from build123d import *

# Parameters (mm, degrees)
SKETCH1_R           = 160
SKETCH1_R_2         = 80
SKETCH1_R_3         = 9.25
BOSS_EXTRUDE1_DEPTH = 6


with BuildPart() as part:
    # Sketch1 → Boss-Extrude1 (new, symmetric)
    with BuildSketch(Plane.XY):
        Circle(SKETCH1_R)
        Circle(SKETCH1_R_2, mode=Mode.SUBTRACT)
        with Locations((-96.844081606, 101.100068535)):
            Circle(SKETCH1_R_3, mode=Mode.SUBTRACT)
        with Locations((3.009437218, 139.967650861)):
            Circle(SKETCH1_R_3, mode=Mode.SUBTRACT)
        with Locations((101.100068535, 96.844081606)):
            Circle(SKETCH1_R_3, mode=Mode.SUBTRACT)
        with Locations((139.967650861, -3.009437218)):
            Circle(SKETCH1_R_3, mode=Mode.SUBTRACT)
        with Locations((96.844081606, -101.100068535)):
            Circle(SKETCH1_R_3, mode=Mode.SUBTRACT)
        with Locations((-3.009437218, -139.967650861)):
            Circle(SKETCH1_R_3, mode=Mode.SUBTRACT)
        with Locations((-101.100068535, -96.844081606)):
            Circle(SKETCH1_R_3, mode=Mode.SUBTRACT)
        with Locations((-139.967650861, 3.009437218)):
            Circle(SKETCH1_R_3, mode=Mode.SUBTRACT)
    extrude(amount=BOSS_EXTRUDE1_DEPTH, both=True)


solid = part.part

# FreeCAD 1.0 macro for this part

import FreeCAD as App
import Part
import Sketcher

V = App.Vector
Q = App.Units.Quantity

doc = App.newDocument("Part")
params = doc.addObject("Spreadsheet::Sheet", "Params")
for row, (alias, value) in enumerate([
    ("sketch1_diameter", "320 mm"),
    ("sketch1_diameter2", "160 mm"),
    ("sketch1_diameter3", "18.5 mm"),
    ("pad1_length", "12 mm"),
], start=1):
    params.set(f"A{row}", alias)
    params.set(f"B{row}", "=" + value)
    params.setAlias(f"B{row}", alias)

body = doc.addObject("PartDesign::Body", "Body")

# Sketch on XY plane
sketch1 = body.newObject("Sketcher::SketchObject", "Sketch")
sketch1.AttachmentSupport = (doc.getObject("XY_Plane"), [""])
sketch1.MapMode = "FlatFace"
sketch1.addGeometry([
    Part.Circle(V(0, 0, 0), V(0, 0, 1), 160),  # 0
    Part.Circle(V(-101.100069, -96.844082, 0), V(0, 0, 1), 9.25),  # 1
    Part.Circle(V(-3.009437, -139.967651, 0), V(0, 0, 1), 9.25),  # 2
    Part.Circle(V(96.844082, -101.100069, 0), V(0, 0, 1), 9.25),  # 3
    Part.Circle(V(0, 0, 0), V(0, 0, 1), 80),  # 4
    Part.Circle(V(139.967651, -3.009437, 0), V(0, 0, 1), 9.25),  # 5
    Part.Circle(V(-139.967651, 3.009437, 0), V(0, 0, 1), 9.25),  # 6
    Part.Circle(V(-96.844082, 101.100069, 0), V(0, 0, 1), 9.25),  # 7
    Part.Circle(V(3.009437, 139.967651, 0), V(0, 0, 1), 9.25),  # 8
    Part.Circle(V(101.100069, 96.844082, 0), V(0, 0, 1), 9.25),  # 9
], False)
sketch1.addConstraint([
    Sketcher.Constraint("Coincident", 0, 3, -1, 1),
    Sketcher.Constraint("Coincident", 4, 3, -1, 1),
    Sketcher.Constraint("Equal", 1, 2),
    Sketcher.Constraint("Equal", 2, 3),
    Sketcher.Constraint("Equal", 3, 5),
    Sketcher.Constraint("Equal", 5, 6),
    Sketcher.Constraint("Equal", 6, 7),
    Sketcher.Constraint("Equal", 7, 8),
    Sketcher.Constraint("Equal", 8, 9),
    Sketcher.Constraint("Symmetric", 5, 3, 6, 3, -1, 1),
    Sketcher.Constraint("Symmetric", 3, 3, 7, 3, -1, 1),
    Sketcher.Constraint("Symmetric", 2, 3, 8, 3, -1, 1),
    Sketcher.Constraint("Symmetric", 1, 3, 9, 3, -1, 1),
    Sketcher.Constraint("Diameter", 0, Q("320 mm")),
    Sketcher.Constraint("Diameter", 4, Q("160 mm")),
    Sketcher.Constraint("Diameter", 1, Q("18.5 mm")),
    Sketcher.Constraint("DistanceX", 1, 3, -1, 1, Q("101.100069 mm")),
    Sketcher.Constraint("DistanceY", 1, 3, -1, 1, Q("96.844082 mm")),
    Sketcher.Constraint("DistanceY", 2, 3, -1, 1, Q("139.967651 mm")),
    Sketcher.Constraint("DistanceX", -1, 1, 3, 3, Q("96.844082 mm")),
    Sketcher.Constraint("DistanceY", 3, 3, -1, 1, Q("101.100069 mm")),
    Sketcher.Constraint("DistanceX", -1, 1, 5, 3, Q("139.967651 mm")),
    Sketcher.Constraint("DistanceX", 1, 3, 2, 3, Q("98.090631 mm")),
    Sketcher.Constraint("DistanceY", 3, 3, 5, 3, Q("98.090631 mm")),
])
sketch1.setExpression("Constraints[13]", "Params.sketch1_diameter")
sketch1.setExpression("Constraints[14]", "Params.sketch1_diameter2")
sketch1.setExpression("Constraints[15]", "Params.sketch1_diameter3")
pad1 = body.newObject("PartDesign::Pad", "Pad")
pad1.Profile = sketch1
pad1.setExpression("Length", "Params.pad1_length")
pad1.Midplane = True

doc.recompute()
